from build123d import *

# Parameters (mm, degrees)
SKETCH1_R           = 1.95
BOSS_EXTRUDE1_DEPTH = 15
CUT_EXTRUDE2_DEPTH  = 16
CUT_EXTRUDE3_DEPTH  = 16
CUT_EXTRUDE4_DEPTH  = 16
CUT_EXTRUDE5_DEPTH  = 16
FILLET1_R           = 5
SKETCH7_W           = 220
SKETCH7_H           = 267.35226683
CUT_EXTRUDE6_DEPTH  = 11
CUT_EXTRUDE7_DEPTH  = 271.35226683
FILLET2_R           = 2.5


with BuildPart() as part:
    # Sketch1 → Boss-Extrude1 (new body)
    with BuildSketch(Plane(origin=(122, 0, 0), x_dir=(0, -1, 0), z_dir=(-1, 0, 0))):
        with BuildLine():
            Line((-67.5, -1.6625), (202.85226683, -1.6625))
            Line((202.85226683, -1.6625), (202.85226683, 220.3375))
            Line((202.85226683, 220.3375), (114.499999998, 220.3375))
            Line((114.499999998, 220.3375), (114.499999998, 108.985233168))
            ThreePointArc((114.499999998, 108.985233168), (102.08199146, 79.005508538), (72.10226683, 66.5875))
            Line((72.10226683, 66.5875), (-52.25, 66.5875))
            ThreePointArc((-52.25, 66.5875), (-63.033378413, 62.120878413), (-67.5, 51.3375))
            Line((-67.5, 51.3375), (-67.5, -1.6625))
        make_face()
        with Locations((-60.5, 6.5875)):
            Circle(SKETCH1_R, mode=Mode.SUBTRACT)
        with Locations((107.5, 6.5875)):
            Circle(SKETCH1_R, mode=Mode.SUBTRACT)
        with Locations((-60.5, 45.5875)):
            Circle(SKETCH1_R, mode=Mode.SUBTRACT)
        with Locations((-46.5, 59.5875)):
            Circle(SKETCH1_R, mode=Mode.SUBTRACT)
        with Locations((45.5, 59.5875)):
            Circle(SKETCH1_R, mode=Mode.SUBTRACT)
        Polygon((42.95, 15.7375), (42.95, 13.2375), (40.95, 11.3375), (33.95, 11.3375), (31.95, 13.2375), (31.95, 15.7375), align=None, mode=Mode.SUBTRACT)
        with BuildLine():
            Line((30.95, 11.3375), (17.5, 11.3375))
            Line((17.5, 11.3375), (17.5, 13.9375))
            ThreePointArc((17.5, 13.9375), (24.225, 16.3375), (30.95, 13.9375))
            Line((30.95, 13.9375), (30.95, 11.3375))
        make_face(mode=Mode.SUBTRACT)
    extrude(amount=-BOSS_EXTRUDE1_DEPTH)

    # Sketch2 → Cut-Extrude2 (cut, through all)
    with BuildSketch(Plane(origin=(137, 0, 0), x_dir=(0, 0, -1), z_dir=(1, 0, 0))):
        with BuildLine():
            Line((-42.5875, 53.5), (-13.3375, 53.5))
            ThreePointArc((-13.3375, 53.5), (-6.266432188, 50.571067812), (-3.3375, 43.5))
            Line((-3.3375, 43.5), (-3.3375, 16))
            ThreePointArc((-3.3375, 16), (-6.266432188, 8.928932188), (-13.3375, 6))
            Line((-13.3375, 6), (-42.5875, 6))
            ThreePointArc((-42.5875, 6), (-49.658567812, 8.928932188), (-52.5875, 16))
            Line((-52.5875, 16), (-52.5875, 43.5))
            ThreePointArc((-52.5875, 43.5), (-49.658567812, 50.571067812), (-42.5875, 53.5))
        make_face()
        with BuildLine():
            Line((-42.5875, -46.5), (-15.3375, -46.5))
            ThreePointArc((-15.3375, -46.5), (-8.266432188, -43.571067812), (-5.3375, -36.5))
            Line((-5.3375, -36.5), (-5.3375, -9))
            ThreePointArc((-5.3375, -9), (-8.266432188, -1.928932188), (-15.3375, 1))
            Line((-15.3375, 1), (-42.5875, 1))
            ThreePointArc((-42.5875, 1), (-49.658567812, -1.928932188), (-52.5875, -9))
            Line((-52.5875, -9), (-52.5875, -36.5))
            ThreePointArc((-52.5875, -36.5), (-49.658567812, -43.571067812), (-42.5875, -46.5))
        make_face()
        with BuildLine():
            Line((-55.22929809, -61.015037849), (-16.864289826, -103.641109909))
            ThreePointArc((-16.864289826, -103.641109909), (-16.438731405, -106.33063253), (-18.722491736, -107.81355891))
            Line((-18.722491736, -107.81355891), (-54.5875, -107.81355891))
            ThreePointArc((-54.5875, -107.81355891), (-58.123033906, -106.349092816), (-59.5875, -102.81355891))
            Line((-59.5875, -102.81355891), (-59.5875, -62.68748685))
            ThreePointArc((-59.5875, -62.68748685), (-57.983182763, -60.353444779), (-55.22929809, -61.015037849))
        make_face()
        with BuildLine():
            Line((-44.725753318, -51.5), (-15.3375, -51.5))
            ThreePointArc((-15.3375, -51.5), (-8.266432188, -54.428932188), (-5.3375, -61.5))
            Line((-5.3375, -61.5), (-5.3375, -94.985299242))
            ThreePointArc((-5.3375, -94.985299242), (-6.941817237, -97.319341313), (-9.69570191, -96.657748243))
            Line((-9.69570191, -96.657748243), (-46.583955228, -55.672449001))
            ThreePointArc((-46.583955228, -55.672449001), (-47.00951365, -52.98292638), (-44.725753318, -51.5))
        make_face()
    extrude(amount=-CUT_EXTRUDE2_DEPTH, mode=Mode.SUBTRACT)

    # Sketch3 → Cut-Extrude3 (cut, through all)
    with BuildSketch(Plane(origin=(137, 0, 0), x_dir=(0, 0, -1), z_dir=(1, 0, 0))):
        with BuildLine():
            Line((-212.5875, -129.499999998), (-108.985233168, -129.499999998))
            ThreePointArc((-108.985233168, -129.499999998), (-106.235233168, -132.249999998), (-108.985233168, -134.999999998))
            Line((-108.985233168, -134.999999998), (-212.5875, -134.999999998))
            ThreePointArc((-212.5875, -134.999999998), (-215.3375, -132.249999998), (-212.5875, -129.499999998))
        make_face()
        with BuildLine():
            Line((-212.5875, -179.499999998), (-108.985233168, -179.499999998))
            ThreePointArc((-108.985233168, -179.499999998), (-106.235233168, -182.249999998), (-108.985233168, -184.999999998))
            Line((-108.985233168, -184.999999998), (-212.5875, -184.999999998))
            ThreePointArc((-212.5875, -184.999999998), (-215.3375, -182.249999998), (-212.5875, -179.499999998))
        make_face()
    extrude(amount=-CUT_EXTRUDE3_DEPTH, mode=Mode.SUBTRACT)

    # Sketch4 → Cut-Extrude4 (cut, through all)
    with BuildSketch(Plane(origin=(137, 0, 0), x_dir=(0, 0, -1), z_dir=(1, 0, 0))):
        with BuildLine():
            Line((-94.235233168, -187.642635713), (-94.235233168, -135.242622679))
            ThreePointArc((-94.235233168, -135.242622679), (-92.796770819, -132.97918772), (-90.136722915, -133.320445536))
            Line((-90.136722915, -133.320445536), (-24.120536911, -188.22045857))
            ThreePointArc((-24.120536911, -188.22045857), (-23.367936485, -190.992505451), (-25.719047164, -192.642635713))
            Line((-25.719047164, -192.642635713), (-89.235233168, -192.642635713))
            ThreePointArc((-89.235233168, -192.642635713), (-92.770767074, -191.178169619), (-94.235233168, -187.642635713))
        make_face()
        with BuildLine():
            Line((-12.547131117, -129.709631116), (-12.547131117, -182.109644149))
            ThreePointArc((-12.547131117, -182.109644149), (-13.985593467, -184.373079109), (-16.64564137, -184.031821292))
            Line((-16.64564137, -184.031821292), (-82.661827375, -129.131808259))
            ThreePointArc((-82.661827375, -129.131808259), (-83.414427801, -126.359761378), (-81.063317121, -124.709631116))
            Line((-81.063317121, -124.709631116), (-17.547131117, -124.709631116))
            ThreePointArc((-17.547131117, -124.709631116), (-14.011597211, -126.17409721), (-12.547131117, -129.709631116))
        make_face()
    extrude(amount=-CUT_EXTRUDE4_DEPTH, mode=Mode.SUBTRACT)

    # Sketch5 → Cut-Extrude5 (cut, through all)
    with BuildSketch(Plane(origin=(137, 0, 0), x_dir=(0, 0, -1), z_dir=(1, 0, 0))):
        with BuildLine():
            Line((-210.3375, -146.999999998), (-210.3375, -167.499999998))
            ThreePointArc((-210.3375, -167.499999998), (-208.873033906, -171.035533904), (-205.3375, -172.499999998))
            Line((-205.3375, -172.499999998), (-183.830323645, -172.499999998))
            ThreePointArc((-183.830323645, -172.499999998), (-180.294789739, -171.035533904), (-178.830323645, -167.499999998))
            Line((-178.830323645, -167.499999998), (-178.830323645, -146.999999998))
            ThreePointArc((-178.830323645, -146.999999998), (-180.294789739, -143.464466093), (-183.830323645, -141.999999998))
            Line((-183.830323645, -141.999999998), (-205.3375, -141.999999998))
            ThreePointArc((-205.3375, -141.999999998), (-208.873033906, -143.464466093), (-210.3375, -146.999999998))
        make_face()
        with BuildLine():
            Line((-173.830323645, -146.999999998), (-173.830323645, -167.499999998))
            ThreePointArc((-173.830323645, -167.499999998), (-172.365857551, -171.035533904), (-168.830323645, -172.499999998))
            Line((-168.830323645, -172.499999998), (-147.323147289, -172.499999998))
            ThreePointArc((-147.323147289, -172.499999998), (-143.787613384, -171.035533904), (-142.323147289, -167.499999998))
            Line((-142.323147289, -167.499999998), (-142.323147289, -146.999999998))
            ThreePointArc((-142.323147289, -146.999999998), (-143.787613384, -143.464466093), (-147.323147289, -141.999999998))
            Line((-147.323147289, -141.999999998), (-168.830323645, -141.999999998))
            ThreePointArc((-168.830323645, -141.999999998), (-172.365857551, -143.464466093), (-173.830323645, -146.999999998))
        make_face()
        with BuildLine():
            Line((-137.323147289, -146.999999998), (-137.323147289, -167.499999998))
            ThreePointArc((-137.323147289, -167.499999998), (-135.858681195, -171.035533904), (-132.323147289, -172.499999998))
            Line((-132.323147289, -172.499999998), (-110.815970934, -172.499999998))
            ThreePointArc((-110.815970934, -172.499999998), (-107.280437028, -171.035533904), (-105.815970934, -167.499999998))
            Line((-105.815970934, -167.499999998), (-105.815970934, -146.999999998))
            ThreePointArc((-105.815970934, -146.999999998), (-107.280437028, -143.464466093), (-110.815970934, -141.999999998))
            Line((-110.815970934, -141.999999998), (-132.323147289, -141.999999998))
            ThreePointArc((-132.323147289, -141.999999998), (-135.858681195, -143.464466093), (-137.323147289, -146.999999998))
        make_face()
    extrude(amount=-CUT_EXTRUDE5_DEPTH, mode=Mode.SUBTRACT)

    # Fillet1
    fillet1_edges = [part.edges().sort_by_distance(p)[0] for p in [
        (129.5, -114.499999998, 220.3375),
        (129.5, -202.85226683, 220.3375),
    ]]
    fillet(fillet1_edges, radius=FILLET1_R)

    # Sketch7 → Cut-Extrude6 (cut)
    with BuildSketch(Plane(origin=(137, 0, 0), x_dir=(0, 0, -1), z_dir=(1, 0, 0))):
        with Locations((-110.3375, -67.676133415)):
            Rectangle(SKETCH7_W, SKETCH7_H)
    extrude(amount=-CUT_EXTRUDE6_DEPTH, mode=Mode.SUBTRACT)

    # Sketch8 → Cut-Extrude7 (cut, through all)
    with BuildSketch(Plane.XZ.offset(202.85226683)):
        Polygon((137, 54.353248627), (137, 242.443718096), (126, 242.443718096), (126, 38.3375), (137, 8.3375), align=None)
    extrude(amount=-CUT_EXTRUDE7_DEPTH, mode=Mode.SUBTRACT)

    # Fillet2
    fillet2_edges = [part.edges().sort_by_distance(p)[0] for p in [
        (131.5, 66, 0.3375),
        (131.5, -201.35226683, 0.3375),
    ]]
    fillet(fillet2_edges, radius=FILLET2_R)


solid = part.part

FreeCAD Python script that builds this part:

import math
import FreeCAD as App
import Part
import Sketcher

V = App.Vector


def edges_at(feature, points):
    """Names of the edges that pass closest to the given points."""
    edges = feature.Shape.Edges
    near = lambda p: min(range(len(edges)), key=lambda i: edges[i].distToShape(Part.Vertex(*p))[0])
    return sorted({f"Edge{near(p) + 1}" for p in points})

doc = App.newDocument("Part")
body = doc.addObject("PartDesign::Body", "Body")

# Sketch on YZ plane
sketch1 = doc.addObject("Sketcher::SketchObject", "Sketch")
body.addObject(sketch1)
sketch1.AttachmentSupport = (doc.YZ_Plane, [""])
sketch1.MapMode = "FlatFace"
sketch1.AttachmentOffset = App.Placement(V(0, 0, 122), App.Rotation())
sketch1.addGeometry([
    Part.LineSegment(V(67.5, -1.7, 0), V(-202.9, -1.7, 0)),  # 0
    Part.LineSegment(V(-202.9, -1.7, 0), V(-202.9, 220.3, 0)),  # 1
    Part.LineSegment(V(-202.9, 220.3, 0), V(-114.5, 220.3, 0)),  # 2
    Part.LineSegment(V(-114.5, 220.3, 0), V(-114.5, 109, 0)),  # 3
    Part.ArcOfCircle(Part.Circle(V(-72.1, 109, 0), V(0, 0, 1), 42.4), math.radians(180), math.radians(270)),  # 4
    Part.LineSegment(V(-72.1, 66.6, 0), V(52.2, 66.6, 0)),  # 5
    Part.ArcOfCircle(Part.Circle(V(52.2, 51.3, 0), V(0, 0, 1), 15.2), math.radians(0), math.radians(90)),  # 6
    Part.LineSegment(V(67.5, 51.3, 0), V(67.5, -1.7, 0)),  # 7
    Part.Circle(V(60.5, 6.6, 0), V(0, 0, 1), 1.9),  # 8
    Part.LineSegment(V(-30.9, 13.9, 0), V(-30.9, 11.3, 0)),  # 9
    Part.LineSegment(V(-30.9, 11.3, 0), V(-17.5, 11.3, 0)),  # 10
    Part.LineSegment(V(-17.5, 11.3, 0), V(-17.5, 13.9, 0)),  # 11
    Part.ArcOfCircle(Part.Circle(V(-24.2, 5.7, 0), V(0, 0, 1), 10.6), math.radians(51), math.radians(129)),  # 12
    Part.LineSegment(V(-31.9, 15.7, 0), V(-43, 15.7, 0)),  # 13
    Part.LineSegment(V(-43, 15.7, 0), V(-43, 13.2, 0)),  # 14
    Part.LineSegment(V(-43, 13.2, 0), V(-41, 11.3, 0)),  # 15
    Part.LineSegment(V(-41, 11.3, 0), V(-34, 11.3, 0)),  # 16
    Part.LineSegment(V(-34, 11.3, 0), V(-31.9, 13.2, 0)),  # 17
    Part.LineSegment(V(-31.9, 13.2, 0), V(-31.9, 15.7, 0)),  # 18
    Part.Circle(V(-107.5, 6.6, 0), V(0, 0, 1), 1.9),  # 19
    Part.Circle(V(60.5, 45.6, 0), V(0, 0, 1), 1.9),  # 20
    Part.Circle(V(46.5, 59.6, 0), V(0, 0, 1), 1.9),  # 21
    Part.Circle(V(-45.5, 59.6, 0), V(0, 0, 1), 1.9),  # 22
], False)
sketch1.addConstraint([
    Sketcher.Constraint("Coincident", 0, 2, 1, 1),
    Sketcher.Constraint("Coincident", 1, 2, 2, 1),
    Sketcher.Constraint("Coincident", 2, 2, 3, 1),
    Sketcher.Constraint("Tangent", 3, 2, 4, 1),
    Sketcher.Constraint("Tangent", 4, 2, 5, 1),
    Sketcher.Constraint("Tangent", 5, 2, 6, 2),
    Sketcher.Constraint("Tangent", 6, 1, 7, 1),
    Sketcher.Constraint("Coincident", 7, 2, 0, 1),
    Sketcher.Constraint("Coincident", 9, 2, 10, 1),
    Sketcher.Constraint("Coincident", 10, 2, 11, 1),
    Sketcher.Constraint("Coincident", 11, 2, 12, 1),
    Sketcher.Constraint("Coincident", 12, 2, 9, 1),
    Sketcher.Constraint("Coincident", 13, 2, 14, 1),
    Sketcher.Constraint("Coincident", 14, 2, 15, 1),
    Sketcher.Constraint("Coincident", 15, 2, 16, 1),
    Sketcher.Constraint("Coincident", 16, 2, 17, 1),
    Sketcher.Constraint("Coincident", 17, 2, 18, 1),
    Sketcher.Constraint("Coincident", 18, 2, 13, 1),
    Sketcher.Constraint("Horizontal", 0),
    Sketcher.Constraint("Vertical", 1),
    Sketcher.Constraint("Horizontal", 2),
    Sketcher.Constraint("Vertical", 3),
    Sketcher.Constraint("Horizontal", 5),
    Sketcher.Constraint("Vertical", 7),
    Sketcher.Constraint("Vertical", 9),
    Sketcher.Constraint("Horizontal", 10),
    Sketcher.Constraint("Vertical", 11),
    Sketcher.Constraint("Horizontal", 13),
    Sketcher.Constraint("Vertical", 14),
    Sketcher.Constraint("Horizontal", 16),
    Sketcher.Constraint("Vertical", 18),
    Sketcher.Constraint("Equal", 8, 19),
    Sketcher.Constraint("Equal", 19, 20),
    Sketcher.Constraint("Equal", 20, 21),
    Sketcher.Constraint("Equal", 21, 22),
    Sketcher.Constraint("Horizontal", 8, 3, 19, 3),
    Sketcher.Constraint("Horizontal", 21, 3, 22, 3),
    Sketcher.Constraint("Horizontal", 11, 2, 12, 2),
    Sketcher.Constraint("Horizontal", 10, 2, 15, 2),
    Sketcher.Constraint("Horizontal", 14, 2, 17, 2),
    Sketcher.Constraint("Vertical", 8, 3, 20, 3),
    Sketcher.Constraint("Equal", 15, 17),
    Sketcher.Constraint("Diameter", 8, 3.9),
    Sketcher.Constraint("DistanceX", 13, 2, 13, 1, 11.0),
    Sketcher.Constraint("DistanceX", 16, 1, 16, 2, 7.0),
    Sketcher.Constraint("DistanceY", 1, 1, 1, 2, 222.0),
    Sketcher.Constraint("DistanceY", 7, 2, 7, 1, 53.0),
    Sketcher.Constraint("Radius", 6, 15.25),
    Sketcher.Constraint("DistanceY", 9, 2, 9, 1, 2.6),
    Sketcher.Constraint("DistanceY", 14, 2, 14, 1, 2.5),
    Sketcher.Constraint("DistanceX", 19, 3, 8, 3, 168.0),
    Sketcher.Constraint("DistanceY", 8, 3, 20, 3, 39.0),
    Sketcher.Constraint("DistanceX", 21, 3, 20, 3, 14.0),
    Sketcher.Constraint("DistanceY", 20, 3, 21, 3, 14.0),
    Sketcher.Constraint("DistanceX", 19, 3, 22, 3, 62.0),
    Sketcher.Constraint("DistanceX", 2, 2, 22, 3, 69.0),
    Sketcher.Constraint("DistanceY", 22, 3, 4, 2, 7.0),
    Sketcher.Constraint("DistanceX", 20, 3, 6, 1, 7.0),
    Sketcher.Constraint("DistanceX", 22, 3, 10, 2, 28.0),
    Sketcher.Constraint("DistanceX", 13, 2, 12, 2, 12.0),
    Sketcher.Constraint("DistanceX", 10, 1, 10, 2, 13.45),
    Sketcher.Constraint("DistanceX", -1, 1, 8, 3, 60.5),
    Sketcher.Constraint("DistanceY", 12, 2, 13, 2, 1.8),
    Sketcher.Constraint("DistanceX", 0, 2, 4, 3, 130.75),
    Sketcher.Constraint("DistanceY", 9, 2, 22, 3, 48.25),
    Sketcher.Constraint("Radius", 4, 42.397733),
    Sketcher.Constraint("Radius", 12, 10.622005),
    Sketcher.Constraint("DistanceY", -1, 1, 6, 3, 51.3375),
])
pad1 = doc.addObject("PartDesign::Pad", "Pad")
body.addObject(pad1)
pad1.Profile = sketch1
pad1.Length = 15

# Sketch on YZ plane
sketch2 = doc.addObject("Sketcher::SketchObject", "Sketch001")
body.addObject(sketch2)
sketch2.AttachmentSupport = (doc.YZ_Plane, [""])
sketch2.MapMode = "FlatFace"
sketch2.AttachmentOffset = App.Placement(V(0, 0, 137), App.Rotation())
sketch2.addGeometry([
    Part.LineSegment(V(53.5, 13.3, 0), V(53.5, 42.6, 0)),  # 0
    Part.ArcOfCircle(Part.Circle(V(43.5, 42.6, 0), V(0, 0, 1), 10), math.radians(0), math.radians(90)),  # 1
    Part.LineSegment(V(43.5, 52.6, 0), V(16, 52.6, 0)),  # 2
    Part.ArcOfCircle(Part.Circle(V(16, 42.6, 0), V(0, 0, 1), 10), math.radians(90), math.radians(180)),  # 3
    Part.LineSegment(V(6, 42.6, 0), V(6, 13.3, 0)),  # 4
    Part.ArcOfCircle(Part.Circle(V(16, 13.3, 0), V(0, 0, 1), 10), math.radians(180), math.radians(270)),  # 5
    Part.LineSegment(V(16, 3.3, 0), V(43.5, 3.3, 0)),  # 6
    Part.ArcOfCircle(Part.Circle(V(43.5, 13.3, 0), V(0, 0, 1), 10), math.radians(-90), math.radians(0)),  # 7
    Part.LineSegment(V(-46.5, 42.6, 0), V(-46.5, 15.3, 0)),  # 8
    Part.ArcOfCircle(Part.Circle(V(-36.5, 15.3, 0), V(0, 0, 1), 10), math.radians(180), math.radians(270)),  # 9
    Part.LineSegment(V(-36.5, 5.3, 0), V(-9, 5.3, 0)),  # 10
    Part.ArcOfCircle(Part.Circle(V(-9, 15.3, 0), V(0, 0, 1), 10), math.radians(-90), math.radians(0)),  # 11
    Part.LineSegment(V(1, 15.3, 0), V(1, 42.6, 0)),  # 12
    Part.ArcOfCircle(Part.Circle(V(-9, 42.6, 0), V(0, 0, 1), 10), math.radians(0), math.radians(90)),  # 13
    Part.LineSegment(V(-9, 52.6, 0), V(-36.5, 52.6, 0)),  # 14
    Part.ArcOfCircle(Part.Circle(V(-36.5, 42.6, 0), V(0, 0, 1), 10), math.radians(90), math.radians(180)),  # 15
    Part.LineSegment(V(-103.6, 16.9, 0), V(-61, 55.2, 0)),  # 16
    Part.ArcOfCircle(Part.Circle(V(-62.7, 57.1, 0), V(0, 0, 1), 2.5), math.radians(-48), math.radians(90)),  # 17
    Part.LineSegment(V(-62.7, 59.6, 0), V(-102.8, 59.6, 0)),  # 18
    Part.ArcOfCircle(Part.Circle(V(-102.8, 54.6, 0), V(0, 0, 1), 5), math.radians(90), math.radians(180)),  # 19
    Part.LineSegment(V(-107.8, 54.6, 0), V(-107.8, 18.7, 0)),  # 20
    Part.ArcOfCircle(Part.Circle(V(-105.3, 18.7, 0), V(0, 0, 1), 2.5), math.radians(-180), math.radians(-48)),  # 21
    Part.LineSegment(V(-51.5, 15.3, 0), V(-51.5, 44.7, 0)),  # 22
    Part.ArcOfCircle(Part.Circle(V(-54, 44.7, 0), V(0, 0, 1), 2.5), math.radians(0), math.radians(132)),  # 23
    Part.LineSegment(V(-55.7, 46.6, 0), V(-96.7, 9.7, 0)),  # 24
    Part.ArcOfCircle(Part.Circle(V(-95, 7.8, 0), V(0, 0, 1), 2.5), math.radians(132), math.radians(270)),  # 25
    Part.LineSegment(V(-95, 5.3, 0), V(-61.5, 5.3, 0)),  # 26
    Part.ArcOfCircle(Part.Circle(V(-61.5, 15.3, 0), V(0, 0, 1), 10), math.radians(-90), math.radians(0)),  # 27
], False)
sketch2.addConstraint([
    Sketcher.Constraint("Tangent", 0, 2, 1, 1),
    Sketcher.Constraint("Tangent", 1, 2, 2, 1),
    Sketcher.Constraint("Tangent", 2, 2, 3, 1),
    Sketcher.Constraint("Tangent", 3, 2, 4, 1),
    Sketcher.Constraint("Tangent", 4, 2, 5, 1),
    Sketcher.Constraint("Tangent", 5, 2, 6, 1),
    Sketcher.Constraint("Tangent", 6, 2, 7, 1),
    Sketcher.Constraint("Tangent", 7, 2, 0, 1),
    Sketcher.Constraint("Tangent", 8, 2, 9, 1),
    Sketcher.Constraint("Tangent", 9, 2, 10, 1),
    Sketcher.Constraint("Tangent", 10, 2, 11, 1),
    Sketcher.Constraint("Tangent", 11, 2, 12, 1),
    Sketcher.Constraint("Tangent", 12, 2, 13, 1),
    Sketcher.Constraint("Tangent", 13, 2, 14, 1),
    Sketcher.Constraint("Tangent", 14, 2, 15, 1),
    Sketcher.Constraint("Tangent", 15, 2, 8, 1),
    Sketcher.Constraint("Tangent", 16, 2, 17, 1),
    Sketcher.Constraint("Tangent", 17, 2, 18, 1),
    Sketcher.Constraint("Tangent", 18, 2, 19, 1),
    Sketcher.Constraint("Tangent", 19, 2, 20, 1),
    Sketcher.Constraint("Tangent", 20, 2, 21, 1),
    Sketcher.Constraint("Tangent", 21, 2, 16, 1),
    Sketcher.Constraint("Tangent", 22, 2, 23, 1),
    Sketcher.Constraint("Tangent", 23, 2, 24, 1),
    Sketcher.Constraint("Tangent", 24, 2, 25, 1),
    Sketcher.Constraint("Tangent", 25, 2, 26, 1),
    Sketcher.Constraint("Tangent", 26, 2, 27, 1),
    Sketcher.Constraint("Tangent", 27, 2, 22, 1),
    Sketcher.Constraint("Vertical", 0),
    Sketcher.Constraint("Horizontal", 2),
    Sketcher.Constraint("Vertical", 4),
    Sketcher.Constraint("Horizontal", 6),
    Sketcher.Constraint("Vertical", 8),
    Sketcher.Constraint("Horizontal", 10),
    Sketcher.Constraint("Vertical", 12),
    Sketcher.Constraint("Horizontal", 14),
    Sketcher.Constraint("Horizontal", 18),
    Sketcher.Constraint("Vertical", 20),
    Sketcher.Constraint("Vertical", 22),
    Sketcher.Constraint("Horizontal", 26),
    Sketcher.Constraint("Equal", 1, 3),
    Sketcher.Constraint("Equal", 3, 5),
    Sketcher.Constraint("Equal", 5, 7),
    Sketcher.Constraint("Equal", 7, 9),
    Sketcher.Constraint("Equal", 9, 11),
    Sketcher.Constraint("Equal", 11, 13),
    Sketcher.Constraint("Equal", 13, 15),
    Sketcher.Constraint("Equal", 17, 21),
    Sketcher.Constraint("Equal", 21, 23),
    Sketcher.Constraint("Equal", 23, 25),
    Sketcher.Constraint("Equal", 15, 27),
    Sketcher.Constraint("Parallel", 16, 24),
    Sketcher.Constraint("Horizontal", 3, 3, 13, 3),
    Sketcher.Constraint("Horizontal", 11, 3, 27, 3),
    Sketcher.Constraint("Equal", 6, 10),
    Sketcher.Constraint("Radius", 1, 10.0),
    Sketcher.Constraint("Radius", 19, 5.0),
    Sketcher.Constraint("Radius", 17, 2.5),
    Sketcher.Constraint("DistanceX", 2, 2, 2, 1, 27.5),
    Sketcher.Constraint("DistanceX", -1, 1, 3, 3, 16.0),
    Sketcher.Constraint("DistanceX", 11, 3, -1, 1, 9.0),
    Sketcher.Constraint("DistanceX", 23, 3, -1, 1, 54.0),
    Sketcher.Constraint("DistanceY", 5, 3, 9, 3, 2.0),
    Sketcher.Constraint("DistanceY", 15, 3, 19, 3, 12.0),
    Sketcher.Constraint("DistanceY", 0, 1, 0, 2, 29.25),
    Sketcher.Constraint("DistanceX", 26, 1, 26, 2, 33.485299),
    Sketcher.Constraint("DistanceY", 20, 2, 20, 1, 35.865008),
    Sketcher.Constraint("DistanceY", -1, 1, 1, 3, 42.5875),
    Sketcher.Constraint("DistanceY", -1, 1, 16, 2, 55.229298),
    Sketcher.Constraint("DistanceX", 19, 3, -1, 1, 102.813559),
])
pocket1 = doc.addObject("PartDesign::Pocket", "Pocket")
body.addObject(pocket1)
pocket1.Profile = sketch2
pocket1.Type = "ThroughAll"

# Sketch on YZ plane
sketch3 = doc.addObject("Sketcher::SketchObject", "Sketch002")
body.addObject(sketch3)
sketch3.AttachmentSupport = (doc.YZ_Plane, [""])
sketch3.MapMode = "FlatFace"
sketch3.AttachmentOffset = App.Placement(V(0, 0, 137), App.Rotation())
sketch3.addGeometry([
    Part.LineSegment(V(-129.5, 109, 0), V(-129.5, 212.6, 0)),  # 0
    Part.ArcOfCircle(Part.Circle(V(-132.2, 212.6, 0), V(0, 0, 1), 2.8), math.radians(0), math.radians(180)),  # 1
    Part.LineSegment(V(-135, 212.6, 0), V(-135, 109, 0)),  # 2
    Part.ArcOfCircle(Part.Circle(V(-132.2, 109, 0), V(0, 0, 1), 2.8), math.radians(180), math.radians(360)),  # 3
    Part.LineSegment(V(-179.5, 109, 0), V(-179.5, 212.6, 0)),  # 4
    Part.ArcOfCircle(Part.Circle(V(-182.2, 212.6, 0), V(0, 0, 1), 2.8), math.radians(0), math.radians(180)),  # 5
    Part.LineSegment(V(-185, 212.6, 0), V(-185, 109, 0)),  # 6
    Part.ArcOfCircle(Part.Circle(V(-182.2, 109, 0), V(0, 0, 1), 2.8), math.radians(180), math.radians(360)),  # 7
], False)
sketch3.addConstraint([
    Sketcher.Constraint("Tangent", 0, 2, 1, 1),
    Sketcher.Constraint("Tangent", 1, 2, 2, 1),
    Sketcher.Constraint("Tangent", 2, 2, 3, 1),
    Sketcher.Constraint("Tangent", 3, 2, 0, 1),
    Sketcher.Constraint("Tangent", 4, 2, 5, 1),
    Sketcher.Constraint("Tangent", 5, 2, 6, 1),
    Sketcher.Constraint("Tangent", 6, 2, 7, 1),
    Sketcher.Constraint("Tangent", 7, 2, 4, 1),
    Sketcher.Constraint("Vertical", 0),
    Sketcher.Constraint("Vertical", 2),
    Sketcher.Constraint("Vertical", 4),
    Sketcher.Constraint("Vertical", 6),
    Sketcher.Constraint("Equal", 3, 5),
    Sketcher.Constraint("Horizontal", 1, 3, 5, 3),
    Sketcher.Constraint("Horizontal", 3, 3, 7, 3),
    Sketcher.Constraint("Radius", 1, 2.75),
    Sketcher.Constraint("DistanceX", 1, 2, -1, 1, 135.0),
    Sketcher.Constraint("DistanceX", 5, 2, -1, 1, 185.0),
    Sketcher.Constraint("DistanceY", -1, 1, 1, 3, 212.5875),
    Sketcher.Constraint("DistanceY", 0, 1, 0, 2, 103.602267),
])
pocket2 = doc.addObject("PartDesign::Pocket", "Pocket001")
body.addObject(pocket2)
pocket2.Profile = sketch3
pocket2.Type = "ThroughAll"

# Sketch on YZ plane
sketch4 = doc.addObject("Sketcher::SketchObject", "Sketch003")
body.addObject(sketch4)
sketch4.AttachmentSupport = (doc.YZ_Plane, [""])
sketch4.MapMode = "FlatFace"
sketch4.AttachmentOffset = App.Placement(V(0, 0, 137), App.Rotation())
sketch4.addGeometry([
    Part.LineSegment(V(-135.2, 94.2, 0), V(-187.6, 94.2, 0)),  # 0
    Part.ArcOfCircle(Part.Circle(V(-187.6, 89.2, 0), V(0, 0, 1), 5), math.radians(90), math.radians(180)),  # 1
    Part.LineSegment(V(-192.6, 89.2, 0), V(-192.6, 25.7, 0)),  # 2
    Part.ArcOfCircle(Part.Circle(V(-190.1, 25.7, 0), V(0, 0, 1), 2.5), math.radians(-180), math.radians(-40)),  # 3
    Part.LineSegment(V(-188.2, 24.1, 0), V(-133.3, 90.1, 0)),  # 4
    Part.ArcOfCircle(Part.Circle(V(-135.2, 91.7, 0), V(0, 0, 1), 2.5), math.radians(-40), math.radians(90)),  # 5
    Part.LineSegment(V(-182.1, 12.5, 0), V(-129.7, 12.5, 0)),  # 6
    Part.ArcOfCircle(Part.Circle(V(-129.7, 17.5, 0), V(0, 0, 1), 5), math.radians(-90), math.radians(0)),  # 7
    Part.LineSegment(V(-124.7, 17.5, 0), V(-124.7, 81.1, 0)),  # 8
    Part.ArcOfCircle(Part.Circle(V(-127.2, 81.1, 0), V(0, 0, 1), 2.5), math.radians(0), math.radians(140)),  # 9
    Part.LineSegment(V(-129.1, 82.7, 0), V(-184, 16.6, 0)),  # 10
    Part.ArcOfCircle(Part.Circle(V(-182.1, 15, 0), V(0, 0, 1), 2.5), math.radians(140), math.radians(270)),  # 11
], False)
sketch4.addConstraint([
    Sketcher.Constraint("Tangent", 0, 2, 1, 1),
    Sketcher.Constraint("Tangent", 1, 2, 2, 1),
    Sketcher.Constraint("Tangent", 2, 2, 3, 1),
    Sketcher.Constraint("Tangent", 3, 2, 4, 1),
    Sketcher.Constraint("Tangent", 4, 2, 5, 1),
    Sketcher.Constraint("Tangent", 5, 2, 0, 1),
    Sketcher.Constraint("Tangent", 6, 2, 7, 1),
    Sketcher.Constraint("Tangent", 7, 2, 8, 1),
    Sketcher.Constraint("Tangent", 8, 2, 9, 1),
    Sketcher.Constraint("Tangent", 9, 2, 10, 1),
    Sketcher.Constraint("Tangent", 10, 2, 11, 1),
    Sketcher.Constraint("Tangent", 11, 2, 6, 1),
    Sketcher.Constraint("Horizontal", 0),
    Sketcher.Constraint("Vertical", 2),
    Sketcher.Constraint("Horizontal", 6),
    Sketcher.Constraint("Vertical", 8),
    Sketcher.Constraint("Equal", 3, 5),
    Sketcher.Constraint("Equal", 1, 7),
    Sketcher.Constraint("Equal", 5, 9),
    Sketcher.Constraint("Equal", 9, 11),
    Sketcher.Constraint("Parallel", 4, 10),
    Sketcher.Constraint("Equal", 0, 6),
    Sketcher.Constraint("Radius", 1, 5.0),
    Sketcher.Constraint("Radius", 3, 2.5),
    Sketcher.Constraint("DistanceX", 0, 2, 0, 1, 52.400013),
    Sketcher.Constraint("DistanceY", 2, 2, 2, 1, 63.516186),
    Sketcher.Constraint("DistanceX", 7, 3, -1, 1, 129.709631),
    Sketcher.Constraint("DistanceY", -1, 1, 7, 3, 17.547131),
    Sketcher.Constraint("DistanceX", 3, 2, -1, 1, 188.220459),
    Sketcher.Constraint("DistanceY", 3, 3, 9, 3, 55.34427),
])
pocket3 = doc.addObject("PartDesign::Pocket", "Pocket002")
body.addObject(pocket3)
pocket3.Profile = sketch4
pocket3.Type = "ThroughAll"

# Sketch on YZ plane
sketch5 = doc.addObject("Sketcher::SketchObject", "Sketch004")
body.addObject(sketch5)
sketch5.AttachmentSupport = (doc.YZ_Plane, [""])
sketch5.MapMode = "FlatFace"
sketch5.AttachmentOffset = App.Placement(V(0, 0, 137), App.Rotation())
sketch5.addGeometry([
    Part.LineSegment(V(-147, 210, 0), V(-167, 210, 0)),  # 0
    Part.ArcOfCircle(Part.Circle(V(-167, 205, 0), V(0, 0, 1), 5), math.radians(90), math.radians(180)),  # 1
    Part.LineSegment(V(-172, 205, 0), V(-172, 184, 0)),  # 2
    Part.ArcOfCircle(Part.Circle(V(-167, 184, 0), V(0, 0, 1), 5), math.radians(180), math.radians(270)),  # 3
    Part.LineSegment(V(-167, 179, 0), V(-147, 179, 0)),  # 4
    Part.ArcOfCircle(Part.Circle(V(-147, 184, 0), V(0, 0, 1), 5), math.radians(-90), math.radians(0)),  # 5
    Part.LineSegment(V(-142, 184, 0), V(-142, 205, 0)),  # 6
    Part.ArcOfCircle(Part.Circle(V(-147, 205, 0), V(0, 0, 1), 5), math.radians(0), math.radians(90)),  # 7
    Part.LineSegment(V(-147, 174, 0), V(-167, 174, 0)),  # 8
    Part.ArcOfCircle(Part.Circle(V(-167, 169, 0), V(0, 0, 1), 5), math.radians(90), math.radians(180)),  # 9
    Part.LineSegment(V(-172, 169, 0), V(-172, 147, 0)),  # 10
    Part.ArcOfCircle(Part.Circle(V(-167, 147, 0), V(0, 0, 1), 5), math.radians(-180), math.radians(-90)),  # 11
    Part.LineSegment(V(-167, 142, 0), V(-147, 142, 0)),  # 12
    Part.ArcOfCircle(Part.Circle(V(-147, 147, 0), V(0, 0, 1), 5), math.radians(-90), math.radians(0)),  # 13
    Part.LineSegment(V(-142, 147, 0), V(-142, 169, 0)),  # 14
    Part.ArcOfCircle(Part.Circle(V(-147, 169, 0), V(0, 0, 1), 5), math.radians(0), math.radians(90)),  # 15
    Part.LineSegment(V(-147, 137, 0), V(-167, 137, 0)),  # 16
    Part.ArcOfCircle(Part.Circle(V(-167, 132, 0), V(0, 0, 1), 5), math.radians(90), math.radians(180)),  # 17
    Part.LineSegment(V(-172, 132, 0), V(-172, 111, 0)),  # 18
    Part.ArcOfCircle(Part.Circle(V(-167, 111, 0), V(0, 0, 1), 5), math.radians(180), math.radians(270)),  # 19
    Part.LineSegment(V(-167, 106, 0), V(-147, 106, 0)),  # 20
    Part.ArcOfCircle(Part.Circle(V(-147, 111, 0), V(0, 0, 1), 5), math.radians(-90), math.radians(0)),  # 21
    Part.LineSegment(V(-142, 111, 0), V(-142, 132, 0)),  # 22
    Part.ArcOfCircle(Part.Circle(V(-147, 132, 0), V(0, 0, 1), 5), math.radians(0), math.radians(90)),  # 23
], False)
sketch5.addConstraint([
    Sketcher.Constraint("Tangent", 0, 2, 1, 1),
    Sketcher.Constraint("Tangent", 1, 2, 2, 1),
    Sketcher.Constraint("Tangent", 2, 2, 3, 1),
    Sketcher.Constraint("Tangent", 3, 2, 4, 1),
    Sketcher.Constraint("Tangent", 4, 2, 5, 1),
    Sketcher.Constraint("Tangent", 5, 2, 6, 1),
    Sketcher.Constraint("Tangent", 6, 2, 7, 1),
    Sketcher.Constraint("Tangent", 7, 2, 0, 1),
    Sketcher.Constraint("Tangent", 8, 2, 9, 1),
    Sketcher.Constraint("Tangent", 9, 2, 10, 1),
    Sketcher.Constraint("Tangent", 10, 2, 11, 1),
    Sketcher.Constraint("Tangent", 11, 2, 12, 1),
    Sketcher.Constraint("Tangent", 12, 2, 13, 1),
    Sketcher.Constraint("Tangent", 13, 2, 14, 1),
    Sketcher.Constraint("Tangent", 14, 2, 15, 1),
    Sketcher.Constraint("Tangent", 15, 2, 8, 1),
    Sketcher.Constraint("Tangent", 16, 2, 17, 1),
    Sketcher.Constraint("Tangent", 17, 2, 18, 1),
    Sketcher.Constraint("Tangent", 18, 2, 19, 1),
    Sketcher.Constraint("Tangent", 19, 2, 20, 1),
    Sketcher.Constraint("Tangent", 20, 2, 21, 1),
    Sketcher.Constraint("Tangent", 21, 2, 22, 1),
    Sketcher.Constraint("Tangent", 22, 2, 23, 1),
    Sketcher.Constraint("Tangent", 23, 2, 16, 1),
    Sketcher.Constraint("Horizontal", 0),
    Sketcher.Constraint("Vertical", 2),
    Sketcher.Constraint("Horizontal", 4),
    Sketcher.Constraint("Vertical", 6),
    Sketcher.Constraint("Horizontal", 8),
    Sketcher.Constraint("Vertical", 10),
    Sketcher.Constraint("Horizontal", 12),
    Sketcher.Constraint("Vertical", 14),
    Sketcher.Constraint("Horizontal", 16),
    Sketcher.Constraint("Vertical", 18),
    Sketcher.Constraint("Horizontal", 20),
    Sketcher.Constraint("Vertical", 22),
    Sketcher.Constraint("Equal", 1, 3),
    Sketcher.Constraint("Equal", 3, 5),
    Sketcher.Constraint("Equal", 5, 7),
    Sketcher.Constraint("Equal", 7, 9),
    Sketcher.Constraint("Equal", 9, 11),
    Sketcher.Constraint("Equal", 11, 13),
    Sketcher.Constraint("Equal", 13, 15),
    Sketcher.Constraint("Equal", 15, 17),
    Sketcher.Constraint("Equal", 17, 19),
    Sketcher.Constraint("Equal", 19, 21),
    Sketcher.Constraint("Equal", 21, 23),
    Sketcher.Constraint("Vertical", 3, 3, 9, 3),
    Sketcher.Constraint("Vertical", 7, 3, 13, 3),
    Sketcher.Constraint("Vertical", 11, 3, 17, 3),
    Sketcher.Constraint("Vertical", 15, 3, 21, 3),
    Sketcher.Constraint("Equal", 6, 10),
    Sketcher.Constraint("Equal", 14, 18),
    Sketcher.Constraint("Radius", 1, 5.0),
    Sketcher.Constraint("DistanceX", 0, 2, 0, 1, 20.5),
    Sketcher.Constraint("DistanceX", 5, 3, -1, 1, 147.0),
    Sketcher.Constraint("DistanceY", 9, 3, 3, 3, 15.0),
    Sketcher.Constraint("DistanceY", 17, 3, 11, 3, 15.0),
    Sketcher.Constraint("DistanceY", -1, 1, 1, 3, 205.3375),
    Sketcher.Constraint("DistanceY", 2, 2, 2, 1, 21.507176),
])
pocket4 = doc.addObject("PartDesign::Pocket", "Pocket003")
body.addObject(pocket4)
pocket4.Profile = sketch5
pocket4.Type = "ThroughAll"
doc.recompute()

fillet = doc.addObject("PartDesign::Fillet", "Fillet")
body.addObject(fillet)
fillet.Base = (pocket4, edges_at(pocket4, [(129.5, -114.5, 220.338), (129.5, -202.852, 220.338)]))
fillet.Radius = 5

# Sketch on YZ plane
sketch6 = doc.addObject("Sketcher::SketchObject", "Sketch005")
body.addObject(sketch6)
sketch6.AttachmentSupport = (doc.YZ_Plane, [""])
sketch6.MapMode = "FlatFace"
sketch6.AttachmentOffset = App.Placement(V(0, 0, 137), App.Rotation())
sketch6.addGeometry([
    Part.LineSegment(V(66, 220, 0), V(-201, 220, 0)),
    Part.LineSegment(V(-201, 220, 0), V(-201, 0, 0)),
    Part.LineSegment(V(-201, 0, 0), V(66, 0, 0)),
    Part.LineSegment(V(66, 0, 0), V(66, 220, 0)),
], False)
sketch6.addConstraint([
    Sketcher.Constraint("Coincident", 0, 2, 1, 1),
    Sketcher.Constraint("Coincident", 1, 2, 2, 1),
    Sketcher.Constraint("Coincident", 2, 2, 3, 1),
    Sketcher.Constraint("Coincident", 3, 2, 0, 1),
    Sketcher.Constraint("Horizontal", 0),
    Sketcher.Constraint("Vertical", 1),
    Sketcher.Constraint("Horizontal", 2),
    Sketcher.Constraint("Vertical", 3),
    Sketcher.Constraint("DistanceY", 1, 2, 1, 1, 220.0),
    Sketcher.Constraint("DistanceX", -1, 1, 2, 2, 66.0),
    Sketcher.Constraint("DistanceY", -1, 1, 0, 2, 220.3375),
    Sketcher.Constraint("DistanceX", 0, 2, 0, 1, 267.352267),
])
pocket5 = doc.addObject("PartDesign::Pocket", "Pocket004")
body.addObject(pocket5)
pocket5.Profile = sketch6
pocket5.Length = 11

# Sketch on XZ plane
sketch7 = doc.addObject("Sketcher::SketchObject", "Sketch006")
body.addObject(sketch7)
sketch7.AttachmentSupport = (doc.XZ_Plane, [""])
sketch7.MapMode = "FlatFace"
sketch7.AttachmentOffset = App.Placement(V(0, 0, 202.852267), App.Rotation())
sketch7.addGeometry([
    Part.LineSegment(V(137, 242, 0), V(126, 242, 0)),
    Part.LineSegment(V(126, 242, 0), V(126, 38, 0)),
    Part.LineSegment(V(126, 38, 0), V(137, 8, 0)),
    Part.LineSegment(V(137, 8, 0), V(137, 242, 0)),
], False)
sketch7.addConstraint([
    Sketcher.Constraint("Coincident", 0, 2, 1, 1),
    Sketcher.Constraint("Coincident", 1, 2, 2, 1),
    Sketcher.Constraint("Coincident", 2, 2, 3, 1),
    Sketcher.Constraint("Coincident", 3, 2, 0, 1),
    Sketcher.Constraint("Horizontal", 0),
    Sketcher.Constraint("Vertical", 1),
    Sketcher.Constraint("Vertical", 3),
    Sketcher.Constraint("DistanceX", 0, 2, 0, 1, 11.0),
    Sketcher.Constraint("DistanceX", -1, 1, 0, 2, 126.0),
    Sketcher.Constraint("DistanceY", 2, 2, 1, 2, 30.0),
    Sketcher.Constraint("DistanceY", 1, 2, 1, 1, 204.106218),
    Sketcher.Constraint("DistanceY", -1, 1, 1, 2, 38.3375),
])
pocket6 = doc.addObject("PartDesign::Pocket", "Pocket005")
body.addObject(pocket6)
pocket6.Profile = sketch7
pocket6.Type = "ThroughAll"
doc.recompute()

fillet2 = doc.addObject("PartDesign::Fillet", "Fillet001")
body.addObject(fillet2)
fillet2.Base = (pocket6, edges_at(pocket6, [(131.5, 66, 0.338), (131.5, -201.352, 0.338)]))
fillet2.Radius = 2.5

doc.recompute()
